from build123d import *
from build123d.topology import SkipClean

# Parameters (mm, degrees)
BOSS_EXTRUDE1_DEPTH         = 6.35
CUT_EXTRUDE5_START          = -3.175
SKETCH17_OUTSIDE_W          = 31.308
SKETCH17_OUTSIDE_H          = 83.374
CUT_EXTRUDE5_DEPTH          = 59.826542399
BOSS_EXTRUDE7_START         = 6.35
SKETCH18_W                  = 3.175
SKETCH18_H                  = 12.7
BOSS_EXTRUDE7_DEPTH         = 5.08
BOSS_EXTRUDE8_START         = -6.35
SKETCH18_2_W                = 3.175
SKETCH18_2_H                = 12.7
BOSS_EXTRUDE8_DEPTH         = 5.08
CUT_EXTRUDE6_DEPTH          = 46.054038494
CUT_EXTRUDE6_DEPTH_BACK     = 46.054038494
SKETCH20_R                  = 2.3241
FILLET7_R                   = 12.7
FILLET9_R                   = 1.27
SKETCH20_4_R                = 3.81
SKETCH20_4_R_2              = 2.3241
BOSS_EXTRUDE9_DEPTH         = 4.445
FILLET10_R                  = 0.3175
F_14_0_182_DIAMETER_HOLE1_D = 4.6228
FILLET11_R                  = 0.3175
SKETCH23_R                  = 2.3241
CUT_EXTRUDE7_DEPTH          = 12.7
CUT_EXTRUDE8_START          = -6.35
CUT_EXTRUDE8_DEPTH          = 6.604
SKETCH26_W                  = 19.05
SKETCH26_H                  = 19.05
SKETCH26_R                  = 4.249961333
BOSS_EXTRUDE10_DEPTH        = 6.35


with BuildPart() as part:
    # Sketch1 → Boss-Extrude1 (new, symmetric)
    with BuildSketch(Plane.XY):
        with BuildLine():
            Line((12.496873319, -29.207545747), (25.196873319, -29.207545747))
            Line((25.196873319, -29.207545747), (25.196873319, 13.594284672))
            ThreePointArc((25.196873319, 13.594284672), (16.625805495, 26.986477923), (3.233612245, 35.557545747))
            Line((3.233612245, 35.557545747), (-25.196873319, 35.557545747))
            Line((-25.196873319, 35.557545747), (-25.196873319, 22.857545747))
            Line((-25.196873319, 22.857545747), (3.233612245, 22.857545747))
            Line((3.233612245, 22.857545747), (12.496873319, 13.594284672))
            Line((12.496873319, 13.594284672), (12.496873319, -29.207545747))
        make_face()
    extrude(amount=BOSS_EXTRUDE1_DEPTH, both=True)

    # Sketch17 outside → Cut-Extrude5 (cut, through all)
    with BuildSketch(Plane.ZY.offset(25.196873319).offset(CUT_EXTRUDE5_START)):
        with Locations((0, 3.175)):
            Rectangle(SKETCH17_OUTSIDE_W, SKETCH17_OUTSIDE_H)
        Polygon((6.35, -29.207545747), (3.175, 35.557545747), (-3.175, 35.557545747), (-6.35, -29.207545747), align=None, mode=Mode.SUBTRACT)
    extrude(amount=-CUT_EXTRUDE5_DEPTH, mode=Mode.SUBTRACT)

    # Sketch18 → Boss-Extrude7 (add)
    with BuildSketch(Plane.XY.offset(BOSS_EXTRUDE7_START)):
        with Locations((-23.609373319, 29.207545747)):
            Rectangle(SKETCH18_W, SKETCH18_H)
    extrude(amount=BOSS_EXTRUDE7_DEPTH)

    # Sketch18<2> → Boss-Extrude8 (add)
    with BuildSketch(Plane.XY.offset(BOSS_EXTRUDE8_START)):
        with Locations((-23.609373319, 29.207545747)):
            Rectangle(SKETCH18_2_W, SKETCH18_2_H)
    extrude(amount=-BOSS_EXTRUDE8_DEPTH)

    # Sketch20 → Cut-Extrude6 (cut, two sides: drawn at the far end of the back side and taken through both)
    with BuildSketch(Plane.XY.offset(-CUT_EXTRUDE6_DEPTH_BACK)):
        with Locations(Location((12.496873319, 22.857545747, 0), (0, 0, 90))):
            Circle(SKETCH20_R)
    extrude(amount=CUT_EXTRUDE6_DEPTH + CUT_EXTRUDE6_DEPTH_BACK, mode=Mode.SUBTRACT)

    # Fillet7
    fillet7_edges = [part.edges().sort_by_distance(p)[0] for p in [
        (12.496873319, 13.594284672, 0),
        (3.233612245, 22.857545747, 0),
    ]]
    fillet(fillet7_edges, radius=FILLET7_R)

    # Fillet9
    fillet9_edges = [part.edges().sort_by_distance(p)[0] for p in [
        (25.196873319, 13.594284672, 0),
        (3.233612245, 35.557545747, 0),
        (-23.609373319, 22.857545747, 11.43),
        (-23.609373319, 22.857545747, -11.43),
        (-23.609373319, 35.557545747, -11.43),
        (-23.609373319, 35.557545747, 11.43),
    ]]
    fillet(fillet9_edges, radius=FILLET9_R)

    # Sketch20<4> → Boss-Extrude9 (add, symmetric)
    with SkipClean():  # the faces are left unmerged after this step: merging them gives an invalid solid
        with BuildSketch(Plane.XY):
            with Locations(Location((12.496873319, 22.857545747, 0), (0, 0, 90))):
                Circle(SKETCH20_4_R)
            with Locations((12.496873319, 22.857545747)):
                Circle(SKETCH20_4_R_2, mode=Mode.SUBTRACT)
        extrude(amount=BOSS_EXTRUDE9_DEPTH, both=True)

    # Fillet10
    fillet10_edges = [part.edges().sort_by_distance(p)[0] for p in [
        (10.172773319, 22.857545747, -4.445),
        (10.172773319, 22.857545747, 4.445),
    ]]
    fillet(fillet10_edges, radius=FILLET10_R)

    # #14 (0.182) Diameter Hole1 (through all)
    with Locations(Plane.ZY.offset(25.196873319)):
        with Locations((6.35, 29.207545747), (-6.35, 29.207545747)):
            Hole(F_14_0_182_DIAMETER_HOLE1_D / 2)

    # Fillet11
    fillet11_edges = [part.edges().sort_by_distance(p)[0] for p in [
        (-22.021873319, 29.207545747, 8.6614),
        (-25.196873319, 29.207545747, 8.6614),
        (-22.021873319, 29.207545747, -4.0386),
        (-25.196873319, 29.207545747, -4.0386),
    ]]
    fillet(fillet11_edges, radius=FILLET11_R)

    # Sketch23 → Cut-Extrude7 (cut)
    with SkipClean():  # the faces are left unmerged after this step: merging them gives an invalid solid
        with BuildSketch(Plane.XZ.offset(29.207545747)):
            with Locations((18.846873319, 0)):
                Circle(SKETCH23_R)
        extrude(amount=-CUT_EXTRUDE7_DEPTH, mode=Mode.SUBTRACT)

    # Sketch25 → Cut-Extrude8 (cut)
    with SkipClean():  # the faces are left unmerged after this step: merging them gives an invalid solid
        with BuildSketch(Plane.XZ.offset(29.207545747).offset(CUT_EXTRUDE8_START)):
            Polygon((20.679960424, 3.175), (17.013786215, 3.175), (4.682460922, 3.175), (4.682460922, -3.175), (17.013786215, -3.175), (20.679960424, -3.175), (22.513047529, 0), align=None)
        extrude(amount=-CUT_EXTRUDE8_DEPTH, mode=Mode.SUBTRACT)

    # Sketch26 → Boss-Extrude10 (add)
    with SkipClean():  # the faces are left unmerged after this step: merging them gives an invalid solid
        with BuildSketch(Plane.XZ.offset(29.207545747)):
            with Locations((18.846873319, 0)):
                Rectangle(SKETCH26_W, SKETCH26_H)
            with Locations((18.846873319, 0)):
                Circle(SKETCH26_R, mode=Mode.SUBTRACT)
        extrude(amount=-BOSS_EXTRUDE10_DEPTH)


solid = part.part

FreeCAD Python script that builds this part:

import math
import FreeCAD as App
import Part
import Sketcher
from FreeCAD import Vector
Q = App.Units.Quantity


def edges_at(feature, points):
    """Names of the edges that pass closest to the given points."""
    edges = feature.Shape.Edges
    near = lambda p: min(range(len(edges)), key=lambda i: edges[i].distToShape(Part.Vertex(*p))[0])
    return sorted({f"Edge{near(p) + 1}" for p in points})


def add_polygon(sketch, points):
    """Adds a closed chain of lines whose ends are joined by coincident constraints."""
    first, n = sketch.GeometryCount, len(points)
    for a, b in zip(points, points[1:] + points[:1]):
        sketch.addGeometry(Part.LineSegment(App.Vector(*a, 0), App.Vector(*b, 0)), False)
    for i in range(n):
        sketch.addConstraint(Sketcher.Constraint("Coincident", first + i, 2, first + (i + 1) % n, 1))

doc = App.newDocument("Part")
body = doc.addObject("PartDesign::Body", "Body")

sketch1 = body.newObject("Sketcher::SketchObject", "Sketch")
sketch1.AttachmentSupport = (doc.getObject("XY_Plane"), [""])
sketch1.MapMode = "FlatFace"
sketch1.addGeometry(Part.LineSegment(Vector(12, -29, 0), Vector(25, -29, 0)), False)
sketch1.addGeometry(Part.LineSegment(Vector(25, -29, 0), Vector(25, 14, 0)), False)
sketch1.addGeometry(Part.ArcOfCircle(Part.Circle(Vector(-10, 1, 0), Vector(0, 0, 1), 37), math.radians(20), math.radians(70)), False)
sketch1.addGeometry(Part.LineSegment(Vector(3, 36, 0), Vector(-25, 36, 0)), False)
sketch1.addGeometry(Part.LineSegment(Vector(-25, 36, 0), Vector(-25, 23, 0)), False)
sketch1.addGeometry(Part.LineSegment(Vector(-25, 23, 0), Vector(3, 23, 0)), False)
sketch1.addGeometry(Part.LineSegment(Vector(3, 23, 0), Vector(12, 14, 0)), False)
sketch1.addGeometry(Part.LineSegment(Vector(12, 14, 0), Vector(12, -29, 0)), False)
sketch1.addConstraint(Sketcher.Constraint("Coincident", 0, 2, 1, 1))
sketch1.addConstraint(Sketcher.Constraint("Coincident", 1, 2, 2, 1))
sketch1.addConstraint(Sketcher.Constraint("Coincident", 2, 2, 3, 1))
sketch1.addConstraint(Sketcher.Constraint("Coincident", 3, 2, 4, 1))
sketch1.addConstraint(Sketcher.Constraint("Coincident", 4, 2, 5, 1))
sketch1.addConstraint(Sketcher.Constraint("Coincident", 5, 2, 6, 1))
sketch1.addConstraint(Sketcher.Constraint("Coincident", 6, 2, 7, 1))
sketch1.addConstraint(Sketcher.Constraint("Coincident", 7, 2, 0, 1))
sketch1.addConstraint(Sketcher.Constraint("Horizontal", 0))
sketch1.addConstraint(Sketcher.Constraint("Vertical", 1))
sketch1.addConstraint(Sketcher.Constraint("Horizontal", 3))
sketch1.addConstraint(Sketcher.Constraint("Vertical", 4))
sketch1.addConstraint(Sketcher.Constraint("Horizontal", 5))
sketch1.addConstraint(Sketcher.Constraint("Vertical", 7))
sketch1.addConstraint(Sketcher.Constraint("Horizontal", 1, 2, 6, 2))
sketch1.addConstraint(Sketcher.Constraint("Vertical", 2, 2, 5, 2))
sketch1.addConstraint(Sketcher.Constraint("Equal", 0, 4))
sketch1.addConstraint(Sketcher.Constraint("DistanceX", 0, 1, 0, 2, Q("0.5 in")))
sketch1.addConstraint(Sketcher.Constraint("Angle", 6, Q("-45 deg")))
sketch1.addConstraint(Sketcher.Constraint("DistanceY", -1, 1, 2, 3, Q("0.0301999 in")))
sketch1.addConstraint(Sketcher.Constraint("Radius", 2, Q("37.079833 mm")))
sketch1.addConstraint(Sketcher.Constraint("DistanceY", 1, 1, 1, 2, Q("42.80183 mm")))
sketch1.addConstraint(Sketcher.Constraint("Distance", 6, Q("13.100229 mm")))
sketch1.addConstraint(Sketcher.Constraint("DistanceX", 3, 2, 3, 1, Q("28.430486 mm")))
sketch1.addConstraint(Sketcher.Constraint("DistanceX", 2, 3, -1, 1, Q("9.593596 mm")))
pad1 = body.newObject("PartDesign::Pad", "Pad")
pad1.Profile = sketch1
pad1.Length = Q("0.5 in")
pad1.Midplane = True

sketch2 = body.newObject("Sketcher::SketchObject", "Sketch001")
sketch2.AttachmentSupport = (doc.getObject("YZ_Plane"), [""])
sketch2.MapMode = "FlatFace"
sketch2.AttachmentOffset = App.Placement(Vector(0, 0, -22.021873), App.Rotation())
add_polygon(sketch2, [(45, -16), (-39, -16), (-39, 16), (45, 16)])
add_polygon(sketch2, [(36, 3), (-29, 6), (-29, -6), (36, -3)])
sketch2.addConstraint(Sketcher.Constraint("Horizontal", 0))
sketch2.addConstraint(Sketcher.Constraint("Vertical", 1))
sketch2.addConstraint(Sketcher.Constraint("Horizontal", 2))
sketch2.addConstraint(Sketcher.Constraint("Vertical", 3))
sketch2.addConstraint(Sketcher.Constraint("Vertical", 5))
sketch2.addConstraint(Sketcher.Constraint("Vertical", 7))
sketch2.addConstraint(Sketcher.Constraint("Equal", 4, 6))
sketch2.addConstraint(Sketcher.Constraint("DistanceY", 5, 2, 5, 1, Q("0.5 in")))
sketch2.addConstraint(Sketcher.Constraint("DistanceY", 7, 1, 7, 2, Q("0.25 in")))
sketch2.addConstraint(Sketcher.Constraint("DistanceY", -1, 1, 4, 2, Q("0.25 in")))
sketch2.addConstraint(Sketcher.Constraint("DistanceX", 0, 2, 0, 1, Q("83.374 mm")))
sketch2.addConstraint(Sketcher.Constraint("DistanceY", 1, 1, 1, 2, Q("31.308 mm")))
sketch2.addConstraint(Sketcher.Constraint("DistanceX", 0, 2, -1, 1, Q("38.512 mm")))
sketch2.addConstraint(Sketcher.Constraint("DistanceY", 0, 2, -1, 1, Q("15.654 mm")))
sketch2.addConstraint(Sketcher.Constraint("Distance", 4, Q("64.842869 mm")))
sketch2.addConstraint(Sketcher.Constraint("DistanceX", 4, 2, -1, 1, Q("29.207546 mm")))
pocket1 = body.newObject("PartDesign::Pocket", "Pocket")
pocket1.Profile = sketch2
pocket1.Type = "ThroughAll"
pocket1.Reversed = True

sketch3 = body.newObject("Sketcher::SketchObject", "Sketch002")
sketch3.AttachmentSupport = (doc.getObject("XY_Plane"), [""])
sketch3.MapMode = "FlatFace"
sketch3.AttachmentOffset = App.Placement(Vector(0, 0, 0.25 * 25.4), App.Rotation())
add_polygon(sketch3, [(-25.2, 35.6), (-25.2, 22.9), (-22, 22.9), (-22, 35.6)])
sketch3.addConstraint(Sketcher.Constraint("Vertical", 0))
sketch3.addConstraint(Sketcher.Constraint("Horizontal", 1))
sketch3.addConstraint(Sketcher.Constraint("Vertical", 2))
sketch3.addConstraint(Sketcher.Constraint("Horizontal", 3))
sketch3.addConstraint(Sketcher.Constraint("DistanceY", 0, 2, 0, 1, Q("0.5 in")))
sketch3.addConstraint(Sketcher.Constraint("DistanceX", 1, 1, 1, 2, Q("0.125 in")))
sketch3.addConstraint(Sketcher.Constraint("DistanceX", 0, 2, -1, 1, Q("25.196873 mm")))
sketch3.addConstraint(Sketcher.Constraint("DistanceY", -1, 1, 0, 2, Q("22.857546 mm")))
pad2 = body.newObject("PartDesign::Pad", "Pad001")
pad2.Profile = sketch3
pad2.Length = Q("0.2 in")

sketch4 = body.newObject("Sketcher::SketchObject", "Sketch003")
sketch4.AttachmentSupport = (doc.getObject("XY_Plane"), [""])
sketch4.MapMode = "FlatFace"
sketch4.AttachmentOffset = App.Placement(Vector(0, 0, -0.25 * 25.4), App.Rotation())
add_polygon(sketch4, [(-25.2, 35.6), (-25.2, 22.9), (-22, 22.9), (-22, 35.6)])
sketch4.addConstraint(Sketcher.Constraint("Vertical", 0))
sketch4.addConstraint(Sketcher.Constraint("Horizontal", 1))
sketch4.addConstraint(Sketcher.Constraint("Vertical", 2))
sketch4.addConstraint(Sketcher.Constraint("Horizontal", 3))
sketch4.addConstraint(Sketcher.Constraint("DistanceY", 0, 2, 0, 1, Q("0.5 in")))
sketch4.addConstraint(Sketcher.Constraint("DistanceX", 1, 1, 1, 2, Q("0.125 in")))
sketch4.addConstraint(Sketcher.Constraint("DistanceX", 0, 2, -1, 1, Q("25.196873 mm")))
sketch4.addConstraint(Sketcher.Constraint("DistanceY", -1, 1, 0, 2, Q("22.857546 mm")))
pad3 = body.newObject("PartDesign::Pad", "Pad002")
pad3.Profile = sketch4
pad3.Length = Q("0.2 in")
pad3.Reversed = True

sketch5 = body.newObject("Sketcher::SketchObject", "Sketch004")
sketch5.AttachmentSupport = (doc.getObject("XY_Plane"), [""])
sketch5.MapMode = "FlatFace"
sketch5.addGeometry(Part.Circle(Vector(12.5, 22.9, 0), Vector(0, 0, 1), 2.3), False)
sketch5.addConstraint(Sketcher.Constraint("Diameter", 0, Q("0.183 in")))
sketch5.addConstraint(Sketcher.Constraint("DistanceX", -1, 1, 0, 3, Q("12.496873 mm")))
sketch5.addConstraint(Sketcher.Constraint("DistanceY", -1, 1, 0, 3, Q("22.857546 mm")))
pocket2 = body.newObject("PartDesign::Pocket", "Pocket001")
pocket2.Profile = sketch5
pocket2.Type = "ThroughAll"
pocket2.Midplane = True
doc.recompute()

fillet = body.newObject("PartDesign::Fillet", "Fillet")
fillet.Base = (pocket2, edges_at(pocket2, [(12.497, 13.594, 0), (3.234, 22.858, 0)]))
fillet.Radius = Q("0.5 in")
doc.recompute()

fillet2 = body.newObject("PartDesign::Fillet", "Fillet001")
fillet2.Base = (fillet, edges_at(fillet, [
    (25.197, 13.594, 0),
    (3.234, 35.558, 0),
    (-23.609, 22.858, 11.43),
    (-23.609, 22.858, -11.43),
    (-23.609, 35.558, -11.43),
    (-23.609, 35.558, 11.43),
]))
fillet2.Radius = Q("0.05 in")

sketch6 = body.newObject("Sketcher::SketchObject", "Sketch005")
sketch6.AttachmentSupport = (doc.getObject("XY_Plane"), [""])
sketch6.MapMode = "FlatFace"
sketch6.addGeometry(Part.Circle(Vector(12.5, 22.9, 0), Vector(0, 0, 1), 3.8), False)
sketch6.addGeometry(Part.Circle(Vector(12.5, 22.9, 0), Vector(0, 0, 1), 2.3), False)
sketch6.addConstraint(Sketcher.Constraint("Coincident", 1, 3, 0, 3))
sketch6.addConstraint(Sketcher.Constraint("Diameter", 0, Q("0.3 in")))
sketch6.addConstraint(Sketcher.Constraint("Diameter", 1, Q("0.183 in")))
sketch6.addConstraint(Sketcher.Constraint("DistanceX", -1, 1, 0, 3, Q("12.496873 mm")))
sketch6.addConstraint(Sketcher.Constraint("DistanceY", -1, 1, 0, 3, Q("22.857546 mm")))
pad4 = body.newObject("PartDesign::Pad", "Pad003")
pad4.Profile = sketch6
pad4.Length = Q("0.35 in")
pad4.Midplane = True
doc.recompute()

fillet3 = body.newObject("PartDesign::Fillet", "Fillet002")
fillet3.Base = (pad4, edges_at(pad4, [(10.173, 22.858, -4.445), (10.173, 22.858, 4.445)]))
fillet3.Radius = Q("0.0125 in")

sketch7 = body.newObject("Sketcher::SketchObject", "Sketch006")
sketch7.AttachmentSupport = (doc.getObject("YZ_Plane"), [""])
sketch7.MapMode = "FlatFace"
sketch7.AttachmentOffset = App.Placement(Vector(0, 0, -25.196873), App.Rotation())
sketch7.addGeometry(Part.Circle(Vector(29.2, 6.3, 0), Vector(0, 0, 1), 2.3), False)
sketch7.addGeometry(Part.Circle(Vector(29.2, -6.3, 0), Vector(0, 0, 1), 2.3), False)
sketch7.addConstraint(Sketcher.Constraint("Equal", 0, 1))
sketch7.addConstraint(Sketcher.Constraint("Symmetric", 0, 3, 1, 3, -1))
sketch7.addConstraint(Sketcher.Constraint("Diameter", 0, Q("0.182 in")))
sketch7.addConstraint(Sketcher.Constraint("DistanceY", 1, 3, 0, 3, Q("0.5 in")))
sketch7.addConstraint(Sketcher.Constraint("DistanceX", -1, 1, 0, 3, Q("29.207546 mm")))
doc.recompute()
hole = body.newObject("PartDesign::Hole", "Hole")
hole.Profile = sketch7
hole.ThreadType = "None"
hole.Diameter = Q("0.182 in")
hole.DepthType = "ThroughAll"
hole.Reversed = True
doc.recompute()

fillet4 = body.newObject("PartDesign::Fillet", "Fillet003")
fillet4.Base = (hole, edges_at(hole, [
    (-22.022, 29.208, 8.661),
    (-25.197, 29.208, 8.661),
    (-22.022, 29.208, -4.039),
    (-25.197, 29.208, -4.039),
]))
fillet4.Radius = Q("0.0125 in")

sketch8 = body.newObject("Sketcher::SketchObject", "Sketch007")
sketch8.AttachmentSupport = (doc.getObject("XZ_Plane"), [""])
sketch8.MapMode = "FlatFace"
sketch8.AttachmentOffset = App.Placement(Vector(0, 0, 29.207546), App.Rotation())
sketch8.addGeometry(Part.Circle(Vector(18.8, 0, 0), Vector(0, 0, 1), 2.3), False)
sketch8.addConstraint(Sketcher.Constraint("PointOnObject", 0, 3, -1))
sketch8.addConstraint(Sketcher.Constraint("Diameter", 0, Q("0.183 in")))
sketch8.addConstraint(Sketcher.Constraint("DistanceX", -1, 1, 0, 3, Q("18.846873 mm")))
pocket3 = body.newObject("PartDesign::Pocket", "Pocket002")
pocket3.Profile = sketch8
pocket3.Length = Q("0.5 in")

sketch9 = body.newObject("Sketcher::SketchObject", "Sketch008")
sketch9.AttachmentSupport = (doc.getObject("XZ_Plane"), [""])
sketch9.MapMode = "FlatFace"
sketch9.AttachmentOffset = App.Placement(Vector(0, 0, 22.857546), App.Rotation())
add_polygon(sketch9, [(20.7, 3.2), (4.7, 3.2), (4.7, -3.2), (20.7, -3.2), (22.5, 0)])
sketch9.addConstraint(Sketcher.Constraint("Horizontal", 0))
sketch9.addConstraint(Sketcher.Constraint("Vertical", 1))
sketch9.addConstraint(Sketcher.Constraint("Horizontal", 2))
sketch9.addConstraint(Sketcher.Constraint("Symmetric", 2, 2, 4, 2, -1))
sketch9.addConstraint(Sketcher.Constraint("PointOnObject", 3, 2, -1))
sketch9.addConstraint(Sketcher.Constraint("Angle", 3, Q("60 deg")))
sketch9.addConstraint(Sketcher.Constraint("DistanceY", 1, 2, 1, 1, Q("0.25 in")))
sketch9.addConstraint(Sketcher.Constraint("DistanceX", 0, 2, 0, 1, Q("15.9975 mm")))
sketch9.addConstraint(Sketcher.Constraint("DistanceX", -1, 1, 0, 2, Q("4.682461 mm")))
pocket4 = body.newObject("PartDesign::Pocket", "Pocket003")
pocket4.Profile = sketch9
pocket4.Length = Q("0.26 in")

sketch10 = body.newObject("Sketcher::SketchObject", "Sketch009")
sketch10.AttachmentSupport = (doc.getObject("XZ_Plane"), [""])
sketch10.MapMode = "FlatFace"
sketch10.AttachmentOffset = App.Placement(Vector(0, 0, 29.207546), App.Rotation())
add_polygon(sketch10, [(9.3, 9.5), (9.3, -9.5), (28.4, -9.5), (28.4, 9.5)])
sketch10.addGeometry(Part.Circle(Vector(18.8, 0, 0), Vector(0, 0, 1), 4.2), False)
sketch10.addConstraint(Sketcher.Constraint("Vertical", 0))
sketch10.addConstraint(Sketcher.Constraint("Horizontal", 1))
sketch10.addConstraint(Sketcher.Constraint("Vertical", 2))
sketch10.addConstraint(Sketcher.Constraint("Horizontal", 3))
sketch10.addConstraint(Sketcher.Constraint("PointOnObject", 4, 3, -1))
sketch10.addConstraint(Sketcher.Constraint("Equal", 3, 0))
sketch10.addConstraint(Sketcher.Constraint("DistanceX", 1, 1, 1, 2, Q("0.75 in")))
sketch10.addConstraint(Sketcher.Constraint("DistanceY", 0, 2, -1, 1, Q("0.375 in")))
sketch10.addConstraint(Sketcher.Constraint("DistanceX", 0, 2, 4, 3, Q("0.375 in")))
sketch10.addConstraint(Sketcher.Constraint("Diameter", 4, Q("8.499923 mm")))
sketch10.addConstraint(Sketcher.Constraint("DistanceX", -1, 1, 4, 3, Q("18.846873 mm")))
pad5 = body.newObject("PartDesign::Pad", "Pad004")
pad5.Profile = sketch10
pad5.Length = Q("0.25 in")
pad5.Reversed = True

doc.recompute()
